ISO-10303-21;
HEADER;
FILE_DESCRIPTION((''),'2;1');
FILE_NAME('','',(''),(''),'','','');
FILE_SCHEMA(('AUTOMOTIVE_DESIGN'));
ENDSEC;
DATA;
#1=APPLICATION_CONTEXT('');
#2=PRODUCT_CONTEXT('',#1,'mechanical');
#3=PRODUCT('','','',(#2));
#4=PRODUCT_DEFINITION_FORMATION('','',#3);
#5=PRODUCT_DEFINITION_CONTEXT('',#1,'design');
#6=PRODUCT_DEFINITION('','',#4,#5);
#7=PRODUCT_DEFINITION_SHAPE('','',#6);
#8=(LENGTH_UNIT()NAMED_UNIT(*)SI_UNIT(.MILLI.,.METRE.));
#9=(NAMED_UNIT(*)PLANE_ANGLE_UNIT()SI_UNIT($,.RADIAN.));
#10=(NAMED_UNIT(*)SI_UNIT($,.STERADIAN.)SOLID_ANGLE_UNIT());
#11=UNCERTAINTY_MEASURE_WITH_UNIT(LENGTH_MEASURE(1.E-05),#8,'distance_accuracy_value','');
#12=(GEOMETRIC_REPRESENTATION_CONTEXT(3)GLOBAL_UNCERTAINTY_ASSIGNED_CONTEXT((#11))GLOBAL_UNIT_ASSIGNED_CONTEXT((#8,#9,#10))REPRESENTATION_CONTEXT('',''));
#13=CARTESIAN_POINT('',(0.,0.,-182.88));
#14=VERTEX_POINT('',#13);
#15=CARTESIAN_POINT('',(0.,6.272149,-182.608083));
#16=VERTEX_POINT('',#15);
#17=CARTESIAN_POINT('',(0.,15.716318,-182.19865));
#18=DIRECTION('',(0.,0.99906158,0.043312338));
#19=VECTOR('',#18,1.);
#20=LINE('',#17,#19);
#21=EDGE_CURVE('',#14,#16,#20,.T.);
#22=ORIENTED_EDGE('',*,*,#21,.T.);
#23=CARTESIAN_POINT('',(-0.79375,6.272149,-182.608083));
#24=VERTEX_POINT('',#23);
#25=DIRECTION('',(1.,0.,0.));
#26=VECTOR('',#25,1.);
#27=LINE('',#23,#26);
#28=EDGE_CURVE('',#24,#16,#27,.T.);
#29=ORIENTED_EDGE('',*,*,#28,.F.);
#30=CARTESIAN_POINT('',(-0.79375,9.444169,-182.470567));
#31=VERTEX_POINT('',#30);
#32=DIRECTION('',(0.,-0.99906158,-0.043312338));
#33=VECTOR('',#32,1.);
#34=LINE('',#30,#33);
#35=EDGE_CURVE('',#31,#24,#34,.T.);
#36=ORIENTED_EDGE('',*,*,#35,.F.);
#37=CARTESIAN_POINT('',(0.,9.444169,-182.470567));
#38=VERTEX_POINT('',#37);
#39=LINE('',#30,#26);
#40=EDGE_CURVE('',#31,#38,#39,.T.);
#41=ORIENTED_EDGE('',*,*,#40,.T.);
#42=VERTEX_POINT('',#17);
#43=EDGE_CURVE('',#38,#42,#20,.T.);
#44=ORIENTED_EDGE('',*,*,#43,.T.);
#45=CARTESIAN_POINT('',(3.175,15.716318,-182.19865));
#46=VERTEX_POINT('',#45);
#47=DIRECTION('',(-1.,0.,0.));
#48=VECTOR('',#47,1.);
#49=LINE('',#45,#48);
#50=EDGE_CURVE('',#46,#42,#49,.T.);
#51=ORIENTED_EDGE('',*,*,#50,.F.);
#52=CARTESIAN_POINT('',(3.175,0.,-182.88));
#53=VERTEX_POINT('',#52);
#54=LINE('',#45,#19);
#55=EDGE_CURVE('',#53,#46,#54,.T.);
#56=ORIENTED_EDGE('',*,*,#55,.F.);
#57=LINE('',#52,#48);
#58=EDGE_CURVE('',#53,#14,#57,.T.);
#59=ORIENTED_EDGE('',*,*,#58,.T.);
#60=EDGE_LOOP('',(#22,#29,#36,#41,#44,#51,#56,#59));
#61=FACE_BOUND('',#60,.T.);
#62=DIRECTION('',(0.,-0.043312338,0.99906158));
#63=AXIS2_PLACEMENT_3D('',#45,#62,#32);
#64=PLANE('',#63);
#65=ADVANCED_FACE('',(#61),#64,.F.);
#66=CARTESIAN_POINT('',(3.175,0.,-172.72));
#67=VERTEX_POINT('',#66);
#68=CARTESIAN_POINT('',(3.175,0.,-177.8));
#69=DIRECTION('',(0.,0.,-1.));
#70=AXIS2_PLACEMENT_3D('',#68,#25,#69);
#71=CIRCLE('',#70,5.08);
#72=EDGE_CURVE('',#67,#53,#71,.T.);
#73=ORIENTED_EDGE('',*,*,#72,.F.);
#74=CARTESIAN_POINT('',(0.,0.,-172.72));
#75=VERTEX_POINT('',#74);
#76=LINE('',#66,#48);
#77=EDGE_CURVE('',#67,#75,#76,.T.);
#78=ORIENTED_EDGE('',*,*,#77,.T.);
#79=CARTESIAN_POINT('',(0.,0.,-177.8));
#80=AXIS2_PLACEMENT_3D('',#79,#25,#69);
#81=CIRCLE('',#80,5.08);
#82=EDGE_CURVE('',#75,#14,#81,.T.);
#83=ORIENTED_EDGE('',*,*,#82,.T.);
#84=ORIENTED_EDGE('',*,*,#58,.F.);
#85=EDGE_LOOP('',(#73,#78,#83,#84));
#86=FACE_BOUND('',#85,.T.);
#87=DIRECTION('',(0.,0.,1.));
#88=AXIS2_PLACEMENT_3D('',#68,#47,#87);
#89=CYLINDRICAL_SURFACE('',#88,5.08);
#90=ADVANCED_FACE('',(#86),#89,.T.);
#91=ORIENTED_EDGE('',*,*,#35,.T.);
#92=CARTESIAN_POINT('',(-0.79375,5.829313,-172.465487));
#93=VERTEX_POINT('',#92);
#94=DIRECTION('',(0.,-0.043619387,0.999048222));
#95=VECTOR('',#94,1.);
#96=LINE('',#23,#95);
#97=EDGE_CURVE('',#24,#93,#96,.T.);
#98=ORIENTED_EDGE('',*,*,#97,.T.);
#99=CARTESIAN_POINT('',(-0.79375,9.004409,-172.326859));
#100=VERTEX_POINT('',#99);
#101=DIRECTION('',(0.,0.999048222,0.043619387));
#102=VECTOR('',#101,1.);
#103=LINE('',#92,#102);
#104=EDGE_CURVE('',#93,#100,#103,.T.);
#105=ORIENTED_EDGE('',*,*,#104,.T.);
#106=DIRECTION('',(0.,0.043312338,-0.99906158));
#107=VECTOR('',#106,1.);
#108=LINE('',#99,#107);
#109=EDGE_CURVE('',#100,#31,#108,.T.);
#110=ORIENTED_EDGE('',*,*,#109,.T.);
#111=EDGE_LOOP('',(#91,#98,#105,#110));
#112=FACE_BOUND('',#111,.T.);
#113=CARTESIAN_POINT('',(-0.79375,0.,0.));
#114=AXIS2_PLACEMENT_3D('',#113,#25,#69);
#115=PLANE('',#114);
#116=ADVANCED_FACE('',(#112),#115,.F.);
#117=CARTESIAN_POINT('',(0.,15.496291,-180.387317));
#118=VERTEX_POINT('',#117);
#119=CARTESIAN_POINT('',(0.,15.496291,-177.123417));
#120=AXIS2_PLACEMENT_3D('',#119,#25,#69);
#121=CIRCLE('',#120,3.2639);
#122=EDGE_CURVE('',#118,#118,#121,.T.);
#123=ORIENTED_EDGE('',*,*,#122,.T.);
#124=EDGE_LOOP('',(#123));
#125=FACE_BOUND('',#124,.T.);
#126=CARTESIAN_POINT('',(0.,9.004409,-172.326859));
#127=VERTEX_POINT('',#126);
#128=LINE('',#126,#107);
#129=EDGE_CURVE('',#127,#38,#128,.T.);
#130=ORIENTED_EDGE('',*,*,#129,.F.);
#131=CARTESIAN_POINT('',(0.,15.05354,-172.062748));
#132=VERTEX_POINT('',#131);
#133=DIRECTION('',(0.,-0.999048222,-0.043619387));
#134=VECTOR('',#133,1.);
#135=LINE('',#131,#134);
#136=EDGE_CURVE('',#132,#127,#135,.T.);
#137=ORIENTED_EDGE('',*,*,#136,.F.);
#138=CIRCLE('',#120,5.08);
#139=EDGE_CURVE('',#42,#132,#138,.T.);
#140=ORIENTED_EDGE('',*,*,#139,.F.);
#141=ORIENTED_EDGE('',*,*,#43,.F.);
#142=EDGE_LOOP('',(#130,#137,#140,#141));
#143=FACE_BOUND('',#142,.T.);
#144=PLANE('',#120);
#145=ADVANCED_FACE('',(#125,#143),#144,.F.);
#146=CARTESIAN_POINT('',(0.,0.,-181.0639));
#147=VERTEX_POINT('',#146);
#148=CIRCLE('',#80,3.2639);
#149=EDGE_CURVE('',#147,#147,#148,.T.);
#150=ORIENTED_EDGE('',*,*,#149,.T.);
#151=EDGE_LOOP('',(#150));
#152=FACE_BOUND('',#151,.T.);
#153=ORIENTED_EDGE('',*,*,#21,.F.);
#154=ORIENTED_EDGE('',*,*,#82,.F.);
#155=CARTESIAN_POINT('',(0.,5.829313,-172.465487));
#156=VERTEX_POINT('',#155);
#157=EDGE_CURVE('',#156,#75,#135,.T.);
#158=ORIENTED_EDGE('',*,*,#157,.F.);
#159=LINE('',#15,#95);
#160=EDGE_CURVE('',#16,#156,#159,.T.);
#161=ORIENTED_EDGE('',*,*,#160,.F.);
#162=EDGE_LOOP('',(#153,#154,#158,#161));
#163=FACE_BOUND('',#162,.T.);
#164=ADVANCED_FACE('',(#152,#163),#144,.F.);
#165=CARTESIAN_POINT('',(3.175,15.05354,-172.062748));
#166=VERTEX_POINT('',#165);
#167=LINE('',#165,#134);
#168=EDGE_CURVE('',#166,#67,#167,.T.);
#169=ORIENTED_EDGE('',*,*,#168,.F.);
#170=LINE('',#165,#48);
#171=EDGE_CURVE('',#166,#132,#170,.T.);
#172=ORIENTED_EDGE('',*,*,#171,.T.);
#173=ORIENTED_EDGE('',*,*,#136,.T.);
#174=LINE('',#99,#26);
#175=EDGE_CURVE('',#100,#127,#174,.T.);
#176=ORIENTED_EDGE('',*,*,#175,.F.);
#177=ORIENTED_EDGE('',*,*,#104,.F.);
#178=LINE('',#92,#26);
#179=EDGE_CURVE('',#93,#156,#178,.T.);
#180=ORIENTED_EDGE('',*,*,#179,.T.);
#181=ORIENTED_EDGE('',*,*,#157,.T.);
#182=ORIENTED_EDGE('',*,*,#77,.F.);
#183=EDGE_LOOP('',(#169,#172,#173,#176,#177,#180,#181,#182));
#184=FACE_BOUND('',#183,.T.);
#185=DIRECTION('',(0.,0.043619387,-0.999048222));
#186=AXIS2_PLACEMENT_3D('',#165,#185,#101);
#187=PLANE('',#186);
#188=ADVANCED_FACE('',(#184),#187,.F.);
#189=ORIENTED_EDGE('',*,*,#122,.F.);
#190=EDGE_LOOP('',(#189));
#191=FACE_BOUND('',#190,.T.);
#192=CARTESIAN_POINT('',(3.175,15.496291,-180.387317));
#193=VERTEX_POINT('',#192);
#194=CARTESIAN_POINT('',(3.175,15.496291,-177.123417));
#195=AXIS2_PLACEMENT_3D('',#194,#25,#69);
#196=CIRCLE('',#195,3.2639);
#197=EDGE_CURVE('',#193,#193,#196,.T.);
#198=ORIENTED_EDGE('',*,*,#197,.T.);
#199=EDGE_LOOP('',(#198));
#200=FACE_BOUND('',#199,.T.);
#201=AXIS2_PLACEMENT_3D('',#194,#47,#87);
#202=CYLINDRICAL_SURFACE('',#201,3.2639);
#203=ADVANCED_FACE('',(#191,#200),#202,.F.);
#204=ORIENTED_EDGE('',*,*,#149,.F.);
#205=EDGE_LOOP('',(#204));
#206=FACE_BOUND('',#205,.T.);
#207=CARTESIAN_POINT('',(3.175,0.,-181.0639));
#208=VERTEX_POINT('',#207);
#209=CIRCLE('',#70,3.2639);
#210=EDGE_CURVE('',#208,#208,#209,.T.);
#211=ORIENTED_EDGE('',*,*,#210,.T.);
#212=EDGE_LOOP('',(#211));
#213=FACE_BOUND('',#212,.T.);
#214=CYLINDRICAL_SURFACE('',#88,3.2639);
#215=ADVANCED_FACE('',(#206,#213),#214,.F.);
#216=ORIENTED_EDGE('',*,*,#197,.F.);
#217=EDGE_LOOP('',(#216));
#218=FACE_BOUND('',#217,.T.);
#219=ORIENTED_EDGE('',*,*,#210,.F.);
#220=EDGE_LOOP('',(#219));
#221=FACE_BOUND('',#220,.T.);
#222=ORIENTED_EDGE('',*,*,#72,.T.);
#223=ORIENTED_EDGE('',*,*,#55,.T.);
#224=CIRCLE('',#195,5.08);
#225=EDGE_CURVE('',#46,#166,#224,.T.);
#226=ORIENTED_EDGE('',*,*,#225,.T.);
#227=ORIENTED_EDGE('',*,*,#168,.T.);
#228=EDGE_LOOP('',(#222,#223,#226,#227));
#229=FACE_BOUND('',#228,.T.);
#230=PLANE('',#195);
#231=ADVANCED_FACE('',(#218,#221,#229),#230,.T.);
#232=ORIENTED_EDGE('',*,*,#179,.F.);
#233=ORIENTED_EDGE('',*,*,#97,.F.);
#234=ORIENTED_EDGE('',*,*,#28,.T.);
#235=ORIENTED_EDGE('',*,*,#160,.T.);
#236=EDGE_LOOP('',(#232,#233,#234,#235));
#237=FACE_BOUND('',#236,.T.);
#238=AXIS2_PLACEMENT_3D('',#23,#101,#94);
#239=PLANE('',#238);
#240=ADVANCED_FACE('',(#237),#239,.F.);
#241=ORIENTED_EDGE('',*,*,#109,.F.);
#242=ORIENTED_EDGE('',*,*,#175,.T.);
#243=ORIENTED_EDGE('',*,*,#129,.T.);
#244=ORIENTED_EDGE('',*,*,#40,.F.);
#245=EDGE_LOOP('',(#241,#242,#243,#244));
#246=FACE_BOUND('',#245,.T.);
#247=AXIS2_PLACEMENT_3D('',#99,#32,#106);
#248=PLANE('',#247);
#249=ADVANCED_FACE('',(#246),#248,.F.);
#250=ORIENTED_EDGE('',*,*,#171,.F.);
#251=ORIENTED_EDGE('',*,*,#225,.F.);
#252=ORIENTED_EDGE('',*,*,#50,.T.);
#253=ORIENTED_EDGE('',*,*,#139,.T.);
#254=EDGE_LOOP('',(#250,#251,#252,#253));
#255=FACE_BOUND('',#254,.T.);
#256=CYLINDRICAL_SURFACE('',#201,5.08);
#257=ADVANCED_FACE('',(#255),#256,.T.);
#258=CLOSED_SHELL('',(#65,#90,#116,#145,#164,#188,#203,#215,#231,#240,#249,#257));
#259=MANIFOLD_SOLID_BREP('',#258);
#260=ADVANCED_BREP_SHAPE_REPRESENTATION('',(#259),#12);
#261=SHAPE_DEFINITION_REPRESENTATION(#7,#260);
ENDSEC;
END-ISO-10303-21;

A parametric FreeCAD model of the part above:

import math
import FreeCAD as App
import Part
import Sketcher

V = App.Vector
Q = App.Units.Quantity

doc = App.newDocument("Part")
body = doc.addObject("PartDesign::Body", "Body")

sketch1 = body.newObject("Sketcher::SketchObject", "Sketch")
sketch1.AttachmentSupport = (doc.getObject("YZ_Plane"), [""])
sketch1.MapMode = "FlatFace"
sketch1.addGeometry(Part.LineSegment(V(15.1, -172.1, 0), V(0, -172.7, 0)), False)
sketch1.addGeometry(Part.ArcOfCircle(Part.Circle(V(0, -177.8, 0), V(0, 0, 1), 5.1), math.radians(90), math.radians(270)), False)
sketch1.addGeometry(Part.LineSegment(V(0, -182.9, 0), V(15.7, -182.2, 0)), False)
sketch1.addGeometry(Part.ArcOfCircle(Part.Circle(V(15.5, -177.1, 0), V(0, 0, 1), 5.1), math.radians(-88), math.radians(95)), False)
sketch1.addGeometry(Part.Circle(V(0, -177.8, 0), V(0, 0, 1), 3.3), False)
sketch1.addGeometry(Part.Circle(V(15.5, -177.1, 0), V(0, 0, 1), 3.3), False)
sketch1.addConstraint(Sketcher.Constraint("Coincident", 0, 2, 1, 1))
sketch1.addConstraint(Sketcher.Constraint("Coincident", 1, 2, 2, 1))
sketch1.addConstraint(Sketcher.Constraint("Tangent", 2, 2, 3, 1))
sketch1.addConstraint(Sketcher.Constraint("Coincident", 3, 2, 0, 1))
sketch1.addConstraint(Sketcher.Constraint("Coincident", 4, 3, 1, 3))
sketch1.addConstraint(Sketcher.Constraint("Coincident", 5, 3, 3, 3))
sketch1.addConstraint(Sketcher.Constraint("Equal", 1, 3))
sketch1.addConstraint(Sketcher.Constraint("Equal", 4, 5))
sketch1.addConstraint(Sketcher.Constraint("PointOnObject", 1, 3, -2))
sketch1.addConstraint(Sketcher.Constraint("PointOnObject", 0, 2, -2))
sketch1.addConstraint(Sketcher.Constraint("PointOnObject", 1, 2, -2))
sketch1.addConstraint(Sketcher.Constraint("Radius", 1, Q("0.2 in")))
sketch1.addConstraint(Sketcher.Constraint("Diameter", 4, Q("0.257 in")))
sketch1.addConstraint(Sketcher.Constraint("DistanceY", 1, 3, -1, 1, Q("7 in")))
sketch1.addConstraint(Sketcher.Constraint("Angle", 0, Q("-177.5 deg")))
sketch1.addConstraint(Sketcher.Constraint("DistanceY", 2, 2, 3, 2, Q("10.135902 mm")))
sketch1.addConstraint(Sketcher.Constraint("Distance", 0, Q("15.067881 mm")))
pad1 = body.newObject("PartDesign::Pad", "Pad")
pad1.Profile = sketch1
pad1.Length = Q("0.125 in")

sketch2 = body.newObject("Sketcher::SketchObject", "Sketch001")
sketch2.AttachmentSupport = (doc.getObject("YZ_Plane"), [""])
sketch2.MapMode = "FlatFace"
sketch2.addGeometry(Part.LineSegment(V(7.9, -182.5, 0), V(6.3, -182.6, 0)), False)
sketch2.addGeometry(Part.LineSegment(V(6.3, -182.6, 0), V(5.8, -172.5, 0)), False)
sketch2.addGeometry(Part.LineSegment(V(5.8, -172.5, 0), V(9, -172.3, 0)), False)
sketch2.addGeometry(Part.LineSegment(V(9, -172.3, 0), V(9.4, -182.5, 0)), False)
sketch2.addGeometry(Part.LineSegment(V(9.4, -182.5, 0), V(7.9, -182.5, 0)), False)
sketch2.addConstraint(Sketcher.Constraint("Coincident", 0, 2, 1, 1))
sketch2.addConstraint(Sketcher.Constraint("Coincident", 1, 2, 2, 1))
sketch2.addConstraint(Sketcher.Constraint("Coincident", 2, 2, 3, 1))
sketch2.addConstraint(Sketcher.Constraint("Coincident", 3, 2, 4, 1))
sketch2.addConstraint(Sketcher.Constraint("Coincident", 4, 2, 0, 1))
sketch2.addConstraint(Sketcher.Constraint("Perpendicular", 1, 2))
sketch2.addConstraint(Sketcher.Constraint("Perpendicular", 0, 3))
sketch2.addConstraint(Sketcher.Constraint("Perpendicular", 3, 4))
sketch2.addConstraint(Sketcher.Constraint("Equal", 0, 4))
sketch2.addConstraint(Sketcher.Constraint("Angle", 1, Q("92.5 deg")))
sketch2.addConstraint(Sketcher.Constraint("Distance", 0, Q("0.0625 in")))
sketch2.addConstraint(Sketcher.Constraint("Distance", 1, Q("10.152259 mm")))
sketch2.addConstraint(Sketcher.Constraint("Distance", 2, Q("3.17812 mm")))
sketch2.addConstraint(Sketcher.Constraint("DistanceX", -1, 1, 0, 2, Q("6.272149 mm")))
sketch2.addConstraint(Sketcher.Constraint("DistanceY", 2, 2, -1, 1, Q("172.326859 mm")))
pad2 = body.newObject("PartDesign::Pad", "Pad001")
pad2.Profile = sketch2
pad2.Length = Q("0.03125 in")
pad2.Reversed = True

doc.recompute()
